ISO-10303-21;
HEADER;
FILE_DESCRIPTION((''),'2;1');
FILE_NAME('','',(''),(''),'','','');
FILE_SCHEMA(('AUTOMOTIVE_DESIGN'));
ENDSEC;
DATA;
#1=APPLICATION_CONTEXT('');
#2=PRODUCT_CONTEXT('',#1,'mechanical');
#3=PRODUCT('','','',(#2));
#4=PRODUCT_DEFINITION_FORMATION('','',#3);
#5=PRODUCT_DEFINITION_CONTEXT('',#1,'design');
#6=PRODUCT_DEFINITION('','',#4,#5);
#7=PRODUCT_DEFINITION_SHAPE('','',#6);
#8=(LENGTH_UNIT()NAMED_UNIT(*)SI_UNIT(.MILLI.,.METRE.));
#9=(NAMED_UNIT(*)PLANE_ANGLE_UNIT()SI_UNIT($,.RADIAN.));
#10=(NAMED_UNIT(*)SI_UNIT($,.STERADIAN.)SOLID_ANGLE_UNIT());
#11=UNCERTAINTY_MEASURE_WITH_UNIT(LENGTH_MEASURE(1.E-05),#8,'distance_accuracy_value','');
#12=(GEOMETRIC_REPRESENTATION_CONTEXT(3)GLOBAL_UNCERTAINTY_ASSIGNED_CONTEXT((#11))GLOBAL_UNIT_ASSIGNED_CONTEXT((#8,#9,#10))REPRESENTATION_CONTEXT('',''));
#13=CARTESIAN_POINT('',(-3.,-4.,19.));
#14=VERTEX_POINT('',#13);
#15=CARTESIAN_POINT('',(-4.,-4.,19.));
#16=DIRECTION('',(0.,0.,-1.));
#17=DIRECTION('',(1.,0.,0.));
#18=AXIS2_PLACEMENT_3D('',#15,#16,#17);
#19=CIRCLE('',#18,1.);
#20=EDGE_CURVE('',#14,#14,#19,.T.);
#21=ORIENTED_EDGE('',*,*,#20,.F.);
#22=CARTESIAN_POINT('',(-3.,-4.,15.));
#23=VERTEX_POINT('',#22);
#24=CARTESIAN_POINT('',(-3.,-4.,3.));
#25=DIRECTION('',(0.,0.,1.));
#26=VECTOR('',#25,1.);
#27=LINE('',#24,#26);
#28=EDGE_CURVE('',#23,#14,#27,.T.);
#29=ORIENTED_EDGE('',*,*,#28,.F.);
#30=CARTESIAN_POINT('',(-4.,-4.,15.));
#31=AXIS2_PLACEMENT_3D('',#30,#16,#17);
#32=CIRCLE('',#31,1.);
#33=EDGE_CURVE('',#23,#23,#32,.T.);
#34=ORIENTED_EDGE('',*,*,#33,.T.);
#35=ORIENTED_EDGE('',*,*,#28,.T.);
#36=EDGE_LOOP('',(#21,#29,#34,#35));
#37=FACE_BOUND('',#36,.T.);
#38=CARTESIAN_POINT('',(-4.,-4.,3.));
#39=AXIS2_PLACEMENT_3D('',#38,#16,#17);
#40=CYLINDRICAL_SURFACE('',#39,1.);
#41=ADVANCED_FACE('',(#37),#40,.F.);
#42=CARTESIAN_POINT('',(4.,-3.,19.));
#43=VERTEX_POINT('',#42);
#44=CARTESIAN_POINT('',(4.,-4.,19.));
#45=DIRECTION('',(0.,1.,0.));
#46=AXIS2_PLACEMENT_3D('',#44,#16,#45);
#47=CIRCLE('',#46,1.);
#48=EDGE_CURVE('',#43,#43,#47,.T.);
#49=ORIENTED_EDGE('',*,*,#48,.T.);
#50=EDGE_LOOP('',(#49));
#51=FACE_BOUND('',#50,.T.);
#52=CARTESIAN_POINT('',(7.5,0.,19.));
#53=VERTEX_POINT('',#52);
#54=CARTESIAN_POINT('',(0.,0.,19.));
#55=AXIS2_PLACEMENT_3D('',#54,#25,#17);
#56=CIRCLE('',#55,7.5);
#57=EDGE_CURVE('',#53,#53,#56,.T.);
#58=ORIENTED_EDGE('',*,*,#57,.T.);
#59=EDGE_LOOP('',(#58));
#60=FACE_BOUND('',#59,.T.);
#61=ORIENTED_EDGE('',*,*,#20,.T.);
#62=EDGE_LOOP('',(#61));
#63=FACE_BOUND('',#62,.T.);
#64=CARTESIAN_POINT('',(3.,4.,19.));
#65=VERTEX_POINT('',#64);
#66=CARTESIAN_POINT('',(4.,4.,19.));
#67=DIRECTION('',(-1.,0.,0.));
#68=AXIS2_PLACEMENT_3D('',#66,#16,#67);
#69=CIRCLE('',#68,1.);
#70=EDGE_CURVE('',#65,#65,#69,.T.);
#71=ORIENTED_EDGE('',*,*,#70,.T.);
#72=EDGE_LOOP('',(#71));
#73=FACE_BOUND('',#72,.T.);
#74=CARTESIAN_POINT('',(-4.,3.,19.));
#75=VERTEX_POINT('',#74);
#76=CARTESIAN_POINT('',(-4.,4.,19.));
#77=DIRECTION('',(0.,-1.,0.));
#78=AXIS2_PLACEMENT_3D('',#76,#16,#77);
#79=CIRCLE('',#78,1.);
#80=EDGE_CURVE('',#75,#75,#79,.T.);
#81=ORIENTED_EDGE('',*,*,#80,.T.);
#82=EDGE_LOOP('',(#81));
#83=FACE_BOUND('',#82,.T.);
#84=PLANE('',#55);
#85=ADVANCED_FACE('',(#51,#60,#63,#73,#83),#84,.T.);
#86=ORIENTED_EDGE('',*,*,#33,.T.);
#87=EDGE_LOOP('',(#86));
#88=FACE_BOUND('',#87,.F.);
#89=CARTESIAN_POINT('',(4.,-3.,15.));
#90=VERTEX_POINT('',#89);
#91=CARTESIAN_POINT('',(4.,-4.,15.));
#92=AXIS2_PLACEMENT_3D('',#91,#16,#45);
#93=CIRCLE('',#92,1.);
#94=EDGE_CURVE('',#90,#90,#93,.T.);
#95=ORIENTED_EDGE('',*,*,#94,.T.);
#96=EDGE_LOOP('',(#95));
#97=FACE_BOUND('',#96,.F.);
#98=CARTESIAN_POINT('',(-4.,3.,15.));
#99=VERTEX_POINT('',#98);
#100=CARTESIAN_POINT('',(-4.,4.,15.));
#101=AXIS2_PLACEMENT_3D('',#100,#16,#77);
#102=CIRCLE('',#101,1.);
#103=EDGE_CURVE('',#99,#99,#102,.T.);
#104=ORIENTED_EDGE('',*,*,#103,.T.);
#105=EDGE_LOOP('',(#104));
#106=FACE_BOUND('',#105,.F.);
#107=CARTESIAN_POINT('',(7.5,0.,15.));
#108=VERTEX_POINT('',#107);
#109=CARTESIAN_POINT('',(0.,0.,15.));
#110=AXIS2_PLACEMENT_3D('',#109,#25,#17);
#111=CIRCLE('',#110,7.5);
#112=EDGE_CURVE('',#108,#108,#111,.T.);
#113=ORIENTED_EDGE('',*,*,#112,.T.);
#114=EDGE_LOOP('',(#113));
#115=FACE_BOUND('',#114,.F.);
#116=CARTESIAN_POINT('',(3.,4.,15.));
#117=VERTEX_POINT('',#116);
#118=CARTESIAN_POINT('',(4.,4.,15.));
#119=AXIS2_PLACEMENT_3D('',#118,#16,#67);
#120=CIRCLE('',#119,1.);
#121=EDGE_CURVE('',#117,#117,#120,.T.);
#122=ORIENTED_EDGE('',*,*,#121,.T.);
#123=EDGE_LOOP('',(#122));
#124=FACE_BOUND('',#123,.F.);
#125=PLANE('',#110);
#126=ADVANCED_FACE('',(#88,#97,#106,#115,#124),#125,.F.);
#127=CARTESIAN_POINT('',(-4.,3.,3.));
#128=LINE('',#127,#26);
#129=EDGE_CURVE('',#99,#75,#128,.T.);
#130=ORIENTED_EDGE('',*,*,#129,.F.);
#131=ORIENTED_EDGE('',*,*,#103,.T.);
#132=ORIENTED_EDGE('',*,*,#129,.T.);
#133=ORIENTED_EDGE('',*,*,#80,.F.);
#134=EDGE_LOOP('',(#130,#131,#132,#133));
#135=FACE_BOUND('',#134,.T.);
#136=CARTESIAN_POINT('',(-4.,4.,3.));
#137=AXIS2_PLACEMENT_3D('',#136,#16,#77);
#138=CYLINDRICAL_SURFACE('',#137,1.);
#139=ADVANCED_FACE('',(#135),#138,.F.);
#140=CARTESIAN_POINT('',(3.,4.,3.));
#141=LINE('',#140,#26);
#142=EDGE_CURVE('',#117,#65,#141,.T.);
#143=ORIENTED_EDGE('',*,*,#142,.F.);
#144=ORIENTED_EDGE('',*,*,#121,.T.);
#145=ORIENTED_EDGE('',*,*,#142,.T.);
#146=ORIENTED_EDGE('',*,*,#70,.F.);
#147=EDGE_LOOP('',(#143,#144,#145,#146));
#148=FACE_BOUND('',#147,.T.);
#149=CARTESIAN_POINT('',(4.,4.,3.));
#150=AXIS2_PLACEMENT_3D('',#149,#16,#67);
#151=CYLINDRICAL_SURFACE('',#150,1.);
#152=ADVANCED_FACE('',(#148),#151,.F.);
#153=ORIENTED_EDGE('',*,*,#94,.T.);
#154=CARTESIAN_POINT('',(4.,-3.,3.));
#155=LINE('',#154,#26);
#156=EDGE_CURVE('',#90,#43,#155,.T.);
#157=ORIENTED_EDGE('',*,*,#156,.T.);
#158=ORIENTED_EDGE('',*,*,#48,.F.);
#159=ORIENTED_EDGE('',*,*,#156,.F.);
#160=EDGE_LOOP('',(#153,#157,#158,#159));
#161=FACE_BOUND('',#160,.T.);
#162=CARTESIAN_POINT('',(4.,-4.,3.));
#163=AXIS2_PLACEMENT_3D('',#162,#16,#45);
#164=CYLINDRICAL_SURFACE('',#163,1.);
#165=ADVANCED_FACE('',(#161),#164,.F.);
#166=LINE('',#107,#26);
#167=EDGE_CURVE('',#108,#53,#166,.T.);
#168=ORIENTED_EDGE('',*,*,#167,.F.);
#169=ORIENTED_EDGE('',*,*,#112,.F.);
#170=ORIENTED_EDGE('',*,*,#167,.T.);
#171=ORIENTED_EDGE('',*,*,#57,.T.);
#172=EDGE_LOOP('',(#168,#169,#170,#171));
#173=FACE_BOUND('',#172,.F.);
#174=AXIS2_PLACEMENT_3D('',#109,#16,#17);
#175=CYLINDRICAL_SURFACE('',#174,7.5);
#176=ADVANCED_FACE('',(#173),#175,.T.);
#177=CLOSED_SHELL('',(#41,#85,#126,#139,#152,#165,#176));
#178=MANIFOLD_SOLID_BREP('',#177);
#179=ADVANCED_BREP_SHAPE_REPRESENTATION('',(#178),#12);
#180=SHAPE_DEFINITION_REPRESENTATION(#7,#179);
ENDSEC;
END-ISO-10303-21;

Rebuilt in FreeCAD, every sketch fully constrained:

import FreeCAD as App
import Part
import Sketcher

doc = App.newDocument("Part")
body = doc.addObject("PartDesign::Body", "Body")

# Sketch on XY plane
sketch1 = body.newObject("Sketcher::SketchObject", "Sketch")
sketch1.AttachmentSupport = (doc.getObject("XY_Plane"), [""])
sketch1.MapMode = "FlatFace"
sketch1.AttachmentOffset = App.Placement(App.Vector(0, 0, -88), App.Rotation())
sketch1.addGeometry(Part.Circle(App.Vector(4, -4, 0), App.Vector(0, 0, 1), 1), False)
sketch1.addConstraint(Sketcher.Constraint("Diameter", 0, 2.0))
sketch1.addConstraint(Sketcher.Constraint("DistanceX", -1, 1, 0, 3, 4.0))
sketch1.addConstraint(Sketcher.Constraint("DistanceY", 0, 3, -1, 1, 4.0))
pad1 = body.newObject("PartDesign::Pad", "Pad")
pad1.Profile = sketch1
pad1.Length = 20
body2 = doc.addObject("PartDesign::Body", "Body001")

# Sketch on XY plane
sketch2 = body2.newObject("Sketcher::SketchObject", "Sketch001")
sketch2.AttachmentSupport = (doc.getObject("XY_Plane001"), [""])
sketch2.MapMode = "FlatFace"
sketch2.AttachmentOffset = App.Placement(App.Vector(0, 0, -88), App.Rotation())
sketch2.addGeometry(Part.Circle(App.Vector(4, 4, 0), App.Vector(0, 0, 1), 1), False)
sketch2.addConstraint(Sketcher.Constraint("Diameter", 0, 2.0))
sketch2.addConstraint(Sketcher.Constraint("DistanceX", -1, 1, 0, 3, 4.0))
sketch2.addConstraint(Sketcher.Constraint("DistanceY", -1, 1, 0, 3, 4.0))
pad2 = body2.newObject("PartDesign::Pad", "Pad001")
pad2.Profile = sketch2
pad2.Length = 20
body3 = doc.addObject("PartDesign::Body", "Body002")

# Sketch on XY plane
sketch3 = body3.newObject("Sketcher::SketchObject", "Sketch002")
sketch3.AttachmentSupport = (doc.getObject("XY_Plane002"), [""])
sketch3.MapMode = "FlatFace"
sketch3.AttachmentOffset = App.Placement(App.Vector(0, 0, -88), App.Rotation())
sketch3.addGeometry(Part.Circle(App.Vector(-4, 4, 0), App.Vector(0, 0, 1), 1), False)
sketch3.addConstraint(Sketcher.Constraint("Diameter", 0, 2.0))
sketch3.addConstraint(Sketcher.Constraint("DistanceX", 0, 3, -1, 1, 4.0))
sketch3.addConstraint(Sketcher.Constraint("DistanceY", -1, 1, 0, 3, 4.0))
pad3 = body3.newObject("PartDesign::Pad", "Pad002")
pad3.Profile = sketch3
pad3.Length = 20
body4 = doc.addObject("PartDesign::Body", "Body003")
body4.AllowCompound = True

# Sketch on XY plane
sketch4 = body4.newObject("Sketcher::SketchObject", "Sketch003")
sketch4.AttachmentSupport = (doc.getObject("XY_Plane003"), [""])
sketch4.MapMode = "FlatFace"
sketch4.AttachmentOffset = App.Placement(App.Vector(0, 0, -88), App.Rotation())
sketch4.addGeometry(Part.Circle(App.Vector(-4, -4, 0), App.Vector(0, 0, 1), 1), False)
sketch4.addConstraint(Sketcher.Constraint("Diameter", 0, 2.0))
sketch4.addConstraint(Sketcher.Constraint("DistanceX", 0, 3, -1, 1, 4.0))
sketch4.addConstraint(Sketcher.Constraint("DistanceY", 0, 3, -1, 1, 4.0))
pad4 = body4.newObject("PartDesign::Pad", "Pad003")
pad4.Profile = sketch4
pad4.Length = 20
doc.recompute()

boolean = body4.newObject("PartDesign::Boolean", "Boolean")
boolean.Type = "Fuse"
boolean.addObjects([body])
doc.recompute()

boolean2 = body4.newObject("PartDesign::Boolean", "Boolean001")
boolean2.Type = "Fuse"
boolean2.addObjects([body2])
doc.recompute()

boolean3 = body4.newObject("PartDesign::Boolean", "Boolean002")
boolean3.Type = "Fuse"
boolean3.addObjects([body3])
body5 = doc.addObject("PartDesign::Body", "Body004")
body5.AllowCompound = True
doc.recompute()

body4.Placement = App.Placement(App.Vector(0, 0, 91), App.Rotation(App.Vector(0, 0, 1), 0))
boolean4 = body5.newObject("PartDesign::Boolean", "Boolean003")
boolean4.Type = "Fuse"
boolean4.addObjects([body4])
body6 = doc.addObject("PartDesign::Body", "Body005")

# Sketch on XY plane
sketch5 = body6.newObject("Sketcher::SketchObject", "Sketch004")
sketch5.AttachmentSupport = (doc.getObject("XY_Plane005"), [""])
sketch5.MapMode = "FlatFace"
sketch5.AttachmentOffset = App.Placement(App.Vector(0, 0, 15), App.Rotation())
sketch5.addGeometry(Part.Circle(App.Vector(0, 0, 0), App.Vector(0, 0, 1), 7.5), False)
sketch5.addConstraint(Sketcher.Constraint("Coincident", 0, 3, -1, 1))
sketch5.addConstraint(Sketcher.Constraint("Diameter", 0, 15.0))
pad5 = body6.newObject("PartDesign::Pad", "Pad004")
pad5.Profile = sketch5
pad5.Length = 4
doc.recompute()

boolean5 = body6.newObject("PartDesign::Boolean", "Boolean004")
boolean5.Type = "Cut"
boolean5.addObjects([body5])

doc.recompute()
